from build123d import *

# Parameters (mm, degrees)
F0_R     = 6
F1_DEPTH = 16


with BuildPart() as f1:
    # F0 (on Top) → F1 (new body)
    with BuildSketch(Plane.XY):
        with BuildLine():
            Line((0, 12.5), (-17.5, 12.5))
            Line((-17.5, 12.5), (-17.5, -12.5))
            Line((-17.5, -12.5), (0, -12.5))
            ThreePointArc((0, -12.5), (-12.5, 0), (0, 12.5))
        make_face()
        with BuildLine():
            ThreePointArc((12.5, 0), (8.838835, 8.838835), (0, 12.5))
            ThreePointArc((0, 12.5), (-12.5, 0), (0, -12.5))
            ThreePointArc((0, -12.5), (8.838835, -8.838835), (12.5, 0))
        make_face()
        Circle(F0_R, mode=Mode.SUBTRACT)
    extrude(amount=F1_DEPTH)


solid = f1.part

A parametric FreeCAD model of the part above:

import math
import FreeCAD as App
import Part
import Sketcher
from FreeCAD import Vector
Q = App.Units.Quantity

doc = App.newDocument("Part")
body = doc.addObject("PartDesign::Body", "Body")

sketch1 = body.newObject("Sketcher::SketchObject", "Sketch")
sketch1.AttachmentSupport = (doc.getObject("XY_Plane"), [""])
sketch1.MapMode = "FlatFace"
sketch1.addGeometry(Part.LineSegment(Vector(0, 12, 0), Vector(-18, 12, 0)), False)
sketch1.addGeometry(Part.LineSegment(Vector(-18, 12, 0), Vector(-18, -12, 0)), False)
sketch1.addGeometry(Part.LineSegment(Vector(-18, -12, 0), Vector(0, -12, 0)), False)
sketch1.addGeometry(Part.ArcOfCircle(Part.Circle(Vector(0, 0, 0), Vector(0, 0, 1), 12), math.radians(-90), math.radians(0)), False)
sketch1.addGeometry(Part.ArcOfCircle(Part.Circle(Vector(0, 0, 0), Vector(0, 0, 1), 12), math.radians(0), math.radians(90)), False)
sketch1.addGeometry(Part.Circle(Vector(0, 0, 0), Vector(0, 0, 1), 6), False)
sketch1.addConstraint(Sketcher.Constraint("Coincident", 0, 2, 1, 1))
sketch1.addConstraint(Sketcher.Constraint("Coincident", 1, 2, 2, 1))
sketch1.addConstraint(Sketcher.Constraint("Tangent", 2, 2, 3, 1))
sketch1.addConstraint(Sketcher.Constraint("Tangent", 3, 2, 4, 1))
sketch1.addConstraint(Sketcher.Constraint("Tangent", 4, 2, 0, 1))
sketch1.addConstraint(Sketcher.Constraint("Horizontal", 0))
sketch1.addConstraint(Sketcher.Constraint("Vertical", 1))
sketch1.addConstraint(Sketcher.Constraint("Horizontal", 2))
sketch1.addConstraint(Sketcher.Constraint("Coincident", 3, 3, -1, 1))
sketch1.addConstraint(Sketcher.Constraint("Coincident", 5, 3, -1, 1))
sketch1.addConstraint(Sketcher.Constraint("Equal", 3, 4))
sketch1.addConstraint(Sketcher.Constraint("PointOnObject", 3, 2, -1))
sketch1.addConstraint(Sketcher.Constraint("Diameter", 5, Q("12 mm")))
sketch1.addConstraint(Sketcher.Constraint("Radius", 3, Q("12.499999 mm")))
sketch1.addConstraint(Sketcher.Constraint("DistanceX", 0, 2, 0, 1, Q("17.5 mm")))
pad1 = body.newObject("PartDesign::Pad", "Pad")
pad1.Profile = sketch1
pad1.Length = 16

doc.recompute()
